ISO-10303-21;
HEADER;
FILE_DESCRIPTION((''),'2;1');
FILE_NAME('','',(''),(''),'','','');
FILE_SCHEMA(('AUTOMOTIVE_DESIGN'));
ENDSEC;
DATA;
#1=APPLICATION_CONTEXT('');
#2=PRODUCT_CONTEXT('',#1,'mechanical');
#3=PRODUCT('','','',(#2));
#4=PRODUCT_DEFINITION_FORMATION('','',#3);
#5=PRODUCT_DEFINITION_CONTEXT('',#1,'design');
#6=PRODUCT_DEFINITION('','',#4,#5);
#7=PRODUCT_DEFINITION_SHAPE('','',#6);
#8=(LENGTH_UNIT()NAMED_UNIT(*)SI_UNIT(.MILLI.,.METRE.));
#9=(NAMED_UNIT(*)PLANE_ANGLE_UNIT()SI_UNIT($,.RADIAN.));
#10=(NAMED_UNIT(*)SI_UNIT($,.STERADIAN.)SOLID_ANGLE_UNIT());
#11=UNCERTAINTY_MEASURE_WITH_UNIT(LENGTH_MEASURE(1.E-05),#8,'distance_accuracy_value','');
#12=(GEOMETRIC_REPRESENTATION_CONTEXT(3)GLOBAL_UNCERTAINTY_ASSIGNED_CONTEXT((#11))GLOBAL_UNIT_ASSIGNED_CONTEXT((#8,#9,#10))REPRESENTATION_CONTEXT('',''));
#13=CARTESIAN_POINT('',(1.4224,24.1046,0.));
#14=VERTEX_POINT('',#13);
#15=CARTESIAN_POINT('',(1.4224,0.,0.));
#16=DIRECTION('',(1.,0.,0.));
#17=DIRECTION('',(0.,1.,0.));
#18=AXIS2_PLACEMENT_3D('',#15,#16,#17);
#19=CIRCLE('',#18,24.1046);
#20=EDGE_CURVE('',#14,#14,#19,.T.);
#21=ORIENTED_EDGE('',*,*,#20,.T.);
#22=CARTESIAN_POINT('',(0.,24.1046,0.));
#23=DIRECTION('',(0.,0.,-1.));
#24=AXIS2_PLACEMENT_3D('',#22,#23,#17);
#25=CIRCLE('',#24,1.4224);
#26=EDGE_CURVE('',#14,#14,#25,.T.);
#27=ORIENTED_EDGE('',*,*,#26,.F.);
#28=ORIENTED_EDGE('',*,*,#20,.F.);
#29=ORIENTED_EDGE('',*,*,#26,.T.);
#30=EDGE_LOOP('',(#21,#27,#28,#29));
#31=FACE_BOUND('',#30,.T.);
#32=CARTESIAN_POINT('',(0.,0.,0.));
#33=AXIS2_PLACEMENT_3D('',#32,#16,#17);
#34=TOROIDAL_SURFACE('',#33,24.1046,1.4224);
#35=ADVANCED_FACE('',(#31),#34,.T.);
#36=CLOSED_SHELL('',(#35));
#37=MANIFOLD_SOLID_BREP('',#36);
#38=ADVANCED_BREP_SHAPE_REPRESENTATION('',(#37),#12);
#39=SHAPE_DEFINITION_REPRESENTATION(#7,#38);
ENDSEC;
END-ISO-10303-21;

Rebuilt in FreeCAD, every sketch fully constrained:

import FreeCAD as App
import Part
import Sketcher
Q = App.Units.Quantity

doc = App.newDocument("Part")
body = doc.addObject("PartDesign::Body", "Body")

sketch1 = doc.addObject("Sketcher::SketchObject", "Sketch")
body.addObject(sketch1)
sketch1.AttachmentSupport = (doc.XY_Plane, [""])
sketch1.MapMode = "FlatFace"
sketch1.addGeometry(Part.Circle(App.Vector(0, 24.1, 0), App.Vector(0, 0, 1), 1.4), False)
sketch1.addConstraint([
    Sketcher.Constraint("PointOnObject", 0, 3, -2),
    Sketcher.Constraint("Diameter", 0, Q("0.112 in")),
    Sketcher.Constraint("DistanceY", -1, 1, 0, 3, Q("0.949 in")),
])

sketch2 = doc.addObject("Sketcher::SketchObject", "Sketch001")
body.addObject(sketch2)
sketch2.AttachmentSupport = (doc.YZ_Plane, [""])
sketch2.MapMode = "FlatFace"
sketch2.addGeometry(Part.Circle(App.Vector(0, 0, 0), App.Vector(0, 0, 1), 26), False)
sketch2.addConstraint([
    Sketcher.Constraint("Coincident", 0, 3, -1, 1),
    Sketcher.Constraint("Diameter", 0, Q("2.01 in")),
])
doc.recompute()

additivepipe = doc.addObject("PartDesign::AdditivePipe", "AdditivePipe")
body.addObject(additivepipe)
additivepipe.Profile = sketch1
additivepipe.Spine = (sketch2, ["Edge1"])

doc.recompute()
